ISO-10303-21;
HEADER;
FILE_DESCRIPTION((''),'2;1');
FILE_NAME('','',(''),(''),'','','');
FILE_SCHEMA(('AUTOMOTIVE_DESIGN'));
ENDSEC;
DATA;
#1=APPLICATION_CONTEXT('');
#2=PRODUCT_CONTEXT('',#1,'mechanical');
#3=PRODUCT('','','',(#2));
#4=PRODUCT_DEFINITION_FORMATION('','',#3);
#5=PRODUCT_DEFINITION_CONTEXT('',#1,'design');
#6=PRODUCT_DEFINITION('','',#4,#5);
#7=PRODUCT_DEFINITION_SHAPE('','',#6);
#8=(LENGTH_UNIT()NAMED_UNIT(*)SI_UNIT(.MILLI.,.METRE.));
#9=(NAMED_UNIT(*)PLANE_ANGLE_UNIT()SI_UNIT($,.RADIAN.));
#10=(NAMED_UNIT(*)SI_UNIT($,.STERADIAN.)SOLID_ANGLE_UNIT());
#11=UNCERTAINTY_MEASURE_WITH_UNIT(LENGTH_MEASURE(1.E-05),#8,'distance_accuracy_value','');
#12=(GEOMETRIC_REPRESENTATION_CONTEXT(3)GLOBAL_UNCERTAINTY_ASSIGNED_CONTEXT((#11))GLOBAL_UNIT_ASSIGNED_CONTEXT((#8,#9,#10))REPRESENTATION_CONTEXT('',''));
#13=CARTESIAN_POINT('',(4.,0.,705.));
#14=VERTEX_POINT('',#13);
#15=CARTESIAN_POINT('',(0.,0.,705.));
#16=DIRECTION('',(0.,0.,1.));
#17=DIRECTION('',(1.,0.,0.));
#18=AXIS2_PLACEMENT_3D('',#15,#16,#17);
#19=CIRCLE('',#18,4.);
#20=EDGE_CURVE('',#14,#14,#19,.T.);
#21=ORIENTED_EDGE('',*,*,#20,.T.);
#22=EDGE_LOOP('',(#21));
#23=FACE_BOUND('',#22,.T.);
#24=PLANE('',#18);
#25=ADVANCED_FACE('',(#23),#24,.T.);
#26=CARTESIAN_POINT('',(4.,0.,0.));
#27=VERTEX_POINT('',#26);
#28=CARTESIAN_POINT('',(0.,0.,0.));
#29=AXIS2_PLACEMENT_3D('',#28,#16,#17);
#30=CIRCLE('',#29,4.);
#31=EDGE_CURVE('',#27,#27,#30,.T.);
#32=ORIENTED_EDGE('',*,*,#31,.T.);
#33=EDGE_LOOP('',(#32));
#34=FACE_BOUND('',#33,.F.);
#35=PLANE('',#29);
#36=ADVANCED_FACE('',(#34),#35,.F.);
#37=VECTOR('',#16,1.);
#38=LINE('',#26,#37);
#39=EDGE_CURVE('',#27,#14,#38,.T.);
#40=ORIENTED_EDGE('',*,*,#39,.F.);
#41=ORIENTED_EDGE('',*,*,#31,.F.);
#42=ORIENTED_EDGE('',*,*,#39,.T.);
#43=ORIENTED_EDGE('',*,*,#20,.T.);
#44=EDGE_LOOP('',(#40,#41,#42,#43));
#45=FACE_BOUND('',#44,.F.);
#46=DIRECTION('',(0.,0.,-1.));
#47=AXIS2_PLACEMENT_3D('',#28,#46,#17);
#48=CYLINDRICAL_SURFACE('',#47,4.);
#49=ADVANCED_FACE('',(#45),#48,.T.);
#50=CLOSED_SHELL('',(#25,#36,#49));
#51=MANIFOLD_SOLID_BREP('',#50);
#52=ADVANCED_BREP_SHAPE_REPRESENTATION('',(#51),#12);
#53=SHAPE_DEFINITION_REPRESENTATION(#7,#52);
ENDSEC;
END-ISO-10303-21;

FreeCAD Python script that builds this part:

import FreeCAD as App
import Part
import Sketcher
Q = App.Units.Quantity

doc = App.newDocument("Part")
body = doc.addObject("PartDesign::Body", "Body")

# Sketch on XY plane
sketch1 = doc.addObject("Sketcher::SketchObject", "Sketch")
body.addObject(sketch1)
sketch1.AttachmentSupport = (doc.XY_Plane, [""])
sketch1.MapMode = "FlatFace"
sketch1.addGeometry(Part.Circle(App.Vector(0, 0, 0), App.Vector(0, 0, 1), 4), False)
sketch1.addConstraint(Sketcher.Constraint("Coincident", 0, 3, -1, 1))
sketch1.addConstraint(Sketcher.Constraint("Diameter", 0, Q("8 mm")))
pad1 = doc.addObject("PartDesign::Pad", "Pad")
body.addObject(pad1)
pad1.Profile = sketch1
pad1.Length = 705

doc.recompute()
